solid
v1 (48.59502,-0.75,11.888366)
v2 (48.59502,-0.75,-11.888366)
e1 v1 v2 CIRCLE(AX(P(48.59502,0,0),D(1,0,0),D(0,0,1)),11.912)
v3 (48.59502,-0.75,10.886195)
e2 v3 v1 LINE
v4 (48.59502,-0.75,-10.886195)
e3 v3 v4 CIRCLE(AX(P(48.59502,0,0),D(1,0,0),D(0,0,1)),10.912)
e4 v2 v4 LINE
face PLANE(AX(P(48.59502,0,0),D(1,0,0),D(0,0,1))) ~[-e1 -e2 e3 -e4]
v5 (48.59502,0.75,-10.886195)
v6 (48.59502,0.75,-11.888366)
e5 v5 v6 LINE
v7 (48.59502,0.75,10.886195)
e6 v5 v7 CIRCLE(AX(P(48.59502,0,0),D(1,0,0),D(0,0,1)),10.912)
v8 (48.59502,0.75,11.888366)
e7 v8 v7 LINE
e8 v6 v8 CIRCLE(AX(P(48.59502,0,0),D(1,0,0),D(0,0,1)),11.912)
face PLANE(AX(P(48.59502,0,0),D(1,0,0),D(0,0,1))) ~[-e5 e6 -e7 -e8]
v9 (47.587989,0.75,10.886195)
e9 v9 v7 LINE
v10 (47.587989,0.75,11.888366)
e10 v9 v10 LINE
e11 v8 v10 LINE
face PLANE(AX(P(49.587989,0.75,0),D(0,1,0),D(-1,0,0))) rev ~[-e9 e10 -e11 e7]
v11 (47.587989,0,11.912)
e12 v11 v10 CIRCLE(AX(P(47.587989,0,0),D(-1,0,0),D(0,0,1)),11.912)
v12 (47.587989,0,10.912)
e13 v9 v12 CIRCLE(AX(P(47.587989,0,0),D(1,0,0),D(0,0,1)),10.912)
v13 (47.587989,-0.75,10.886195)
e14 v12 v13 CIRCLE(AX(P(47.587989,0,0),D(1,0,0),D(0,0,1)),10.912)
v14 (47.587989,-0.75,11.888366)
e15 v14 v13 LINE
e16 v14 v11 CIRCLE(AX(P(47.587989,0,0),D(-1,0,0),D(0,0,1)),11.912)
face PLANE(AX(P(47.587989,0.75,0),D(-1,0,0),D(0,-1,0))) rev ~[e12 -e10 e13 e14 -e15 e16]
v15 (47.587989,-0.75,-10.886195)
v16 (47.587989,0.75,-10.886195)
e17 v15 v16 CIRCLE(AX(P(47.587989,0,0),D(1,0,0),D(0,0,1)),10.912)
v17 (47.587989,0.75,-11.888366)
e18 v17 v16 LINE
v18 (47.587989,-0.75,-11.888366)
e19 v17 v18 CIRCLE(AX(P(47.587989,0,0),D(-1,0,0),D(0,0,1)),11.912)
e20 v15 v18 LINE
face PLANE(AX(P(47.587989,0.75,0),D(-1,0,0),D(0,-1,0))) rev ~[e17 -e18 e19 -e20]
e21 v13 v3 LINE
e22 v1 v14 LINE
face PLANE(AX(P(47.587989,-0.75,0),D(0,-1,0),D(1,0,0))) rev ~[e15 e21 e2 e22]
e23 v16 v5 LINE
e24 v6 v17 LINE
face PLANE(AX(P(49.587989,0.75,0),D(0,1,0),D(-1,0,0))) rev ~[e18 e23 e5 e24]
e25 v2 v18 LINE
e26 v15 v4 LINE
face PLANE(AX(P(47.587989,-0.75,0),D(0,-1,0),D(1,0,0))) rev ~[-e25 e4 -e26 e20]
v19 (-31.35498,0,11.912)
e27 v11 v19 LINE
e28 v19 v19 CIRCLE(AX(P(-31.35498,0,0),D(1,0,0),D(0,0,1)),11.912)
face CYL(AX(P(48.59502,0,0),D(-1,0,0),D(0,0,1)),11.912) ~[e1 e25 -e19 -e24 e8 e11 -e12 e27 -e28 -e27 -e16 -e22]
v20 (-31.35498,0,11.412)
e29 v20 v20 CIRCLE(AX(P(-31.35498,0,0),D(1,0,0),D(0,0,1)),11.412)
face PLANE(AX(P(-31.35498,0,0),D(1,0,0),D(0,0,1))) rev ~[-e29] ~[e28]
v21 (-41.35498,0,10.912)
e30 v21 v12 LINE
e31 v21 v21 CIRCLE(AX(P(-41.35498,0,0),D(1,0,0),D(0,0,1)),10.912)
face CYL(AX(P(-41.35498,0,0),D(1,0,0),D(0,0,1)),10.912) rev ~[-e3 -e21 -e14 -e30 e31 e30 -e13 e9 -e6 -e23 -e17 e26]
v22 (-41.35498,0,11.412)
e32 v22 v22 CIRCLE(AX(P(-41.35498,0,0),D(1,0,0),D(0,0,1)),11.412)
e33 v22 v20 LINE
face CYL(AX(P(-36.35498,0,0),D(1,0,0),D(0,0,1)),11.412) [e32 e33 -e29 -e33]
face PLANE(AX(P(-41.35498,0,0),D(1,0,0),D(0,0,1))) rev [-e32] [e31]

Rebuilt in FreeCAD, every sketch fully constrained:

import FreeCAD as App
import Part
import Sketcher
from FreeCAD import Vector
Q = App.Units.Quantity

doc = App.newDocument("Part")
body = doc.addObject("PartDesign::Body", "Body")

# Sketch on XZ plane
sketch1 = body.newObject("Sketcher::SketchObject", "Sketch")
sketch1.AttachmentSupport = (doc.getObject("XZ_Plane"), [""])
sketch1.MapMode = "FlatFace"
sketch1.addGeometry([
    Part.LineSegment(Vector(48.6, 11.9, 0), Vector(-31.4, 11.9, 0)),  # 0
    Part.LineSegment(Vector(-31.4, 11.9, 0), Vector(-31.4, 11.4, 0)),  # 1
    Part.LineSegment(Vector(-31.4, 11.4, 0), Vector(-41.4, 11.4, 0)),  # 2
    Part.LineSegment(Vector(-41.4, 11.4, 0), Vector(-41.4, 10.9, 0)),  # 3
    Part.LineSegment(Vector(-41.4, 10.9, 0), Vector(48.6, 10.9, 0)),  # 4
    Part.LineSegment(Vector(48.6, 10.9, 0), Vector(48.6, 11.9, 0)),  # 5
], False)
sketch1.addConstraint([
    Sketcher.Constraint("Coincident", 0, 2, 1, 1),
    Sketcher.Constraint("Coincident", 1, 2, 2, 1),
    Sketcher.Constraint("Coincident", 2, 2, 3, 1),
    Sketcher.Constraint("Coincident", 3, 2, 4, 1),
    Sketcher.Constraint("Coincident", 4, 2, 5, 1),
    Sketcher.Constraint("Coincident", 5, 2, 0, 1),
    Sketcher.Constraint("Horizontal", 0),
    Sketcher.Constraint("Vertical", 1),
    Sketcher.Constraint("Horizontal", 2),
    Sketcher.Constraint("Vertical", 3),
    Sketcher.Constraint("Horizontal", 4),
    Sketcher.Constraint("Vertical", 5),
    Sketcher.Constraint("Equal", 1, 3),
    Sketcher.Constraint("DistanceX", 2, 2, 2, 1, Q("10 mm")),
    Sketcher.Constraint("DistanceY", 5, 1, 5, 2, Q("1 mm")),
    Sketcher.Constraint("DistanceX", 0, 2, 0, 1, Q("79.95 mm")),
    Sketcher.Constraint("DistanceY", -1, 1, 0, 2, Q("11.912 mm")),
    Sketcher.Constraint("DistanceX", 0, 2, -1, 1, Q("31.35498 mm")),
])
revolution = body.newObject("PartDesign::Revolution", "Revolution")
revolution.Profile = sketch1
revolution.ReferenceAxis = (sketch1, ["H_Axis"])
revolution.Angle = 360

# Sketch on XY plane
sketch2 = body.newObject("Sketcher::SketchObject", "Sketch001")
sketch2.AttachmentSupport = (doc.getObject("XY_Plane"), [""])
sketch2.MapMode = "FlatFace"
sketch2.addGeometry([
    Part.LineSegment(Vector(49.6, -0.8, 0), Vector(49.6, 0.8, 0)),
    Part.LineSegment(Vector(49.6, 0.8, 0), Vector(47.6, 0.8, 0)),
    Part.LineSegment(Vector(47.6, 0.8, 0), Vector(47.6, -0.8, 0)),
    Part.LineSegment(Vector(47.6, -0.8, 0), Vector(49.6, -0.8, 0)),
], False)
sketch2.addConstraint([
    Sketcher.Constraint("Coincident", 0, 2, 1, 1),
    Sketcher.Constraint("Coincident", 1, 2, 2, 1),
    Sketcher.Constraint("Coincident", 2, 2, 3, 1),
    Sketcher.Constraint("Coincident", 3, 2, 0, 1),
    Sketcher.Constraint("Vertical", 0),
    Sketcher.Constraint("Horizontal", 1),
    Sketcher.Constraint("Vertical", 2),
    Sketcher.Constraint("Horizontal", 3),
    Sketcher.Constraint("DistanceX", 1, 2, 1, 1, Q("2 mm")),
    Sketcher.Constraint("DistanceY", 0, 1, 0, 2, Q("1.5 mm")),
    Sketcher.Constraint("DistanceY", -1, 1, 0, 2, Q("0.75 mm")),
    Sketcher.Constraint("DistanceX", -1, 1, 0, 2, Q("49.587989 mm")),
])
pocket1 = body.newObject("PartDesign::Pocket", "Pocket")
pocket1.Profile = sketch2
pocket1.Length = 25
pocket1.Midplane = True

doc.recompute()
